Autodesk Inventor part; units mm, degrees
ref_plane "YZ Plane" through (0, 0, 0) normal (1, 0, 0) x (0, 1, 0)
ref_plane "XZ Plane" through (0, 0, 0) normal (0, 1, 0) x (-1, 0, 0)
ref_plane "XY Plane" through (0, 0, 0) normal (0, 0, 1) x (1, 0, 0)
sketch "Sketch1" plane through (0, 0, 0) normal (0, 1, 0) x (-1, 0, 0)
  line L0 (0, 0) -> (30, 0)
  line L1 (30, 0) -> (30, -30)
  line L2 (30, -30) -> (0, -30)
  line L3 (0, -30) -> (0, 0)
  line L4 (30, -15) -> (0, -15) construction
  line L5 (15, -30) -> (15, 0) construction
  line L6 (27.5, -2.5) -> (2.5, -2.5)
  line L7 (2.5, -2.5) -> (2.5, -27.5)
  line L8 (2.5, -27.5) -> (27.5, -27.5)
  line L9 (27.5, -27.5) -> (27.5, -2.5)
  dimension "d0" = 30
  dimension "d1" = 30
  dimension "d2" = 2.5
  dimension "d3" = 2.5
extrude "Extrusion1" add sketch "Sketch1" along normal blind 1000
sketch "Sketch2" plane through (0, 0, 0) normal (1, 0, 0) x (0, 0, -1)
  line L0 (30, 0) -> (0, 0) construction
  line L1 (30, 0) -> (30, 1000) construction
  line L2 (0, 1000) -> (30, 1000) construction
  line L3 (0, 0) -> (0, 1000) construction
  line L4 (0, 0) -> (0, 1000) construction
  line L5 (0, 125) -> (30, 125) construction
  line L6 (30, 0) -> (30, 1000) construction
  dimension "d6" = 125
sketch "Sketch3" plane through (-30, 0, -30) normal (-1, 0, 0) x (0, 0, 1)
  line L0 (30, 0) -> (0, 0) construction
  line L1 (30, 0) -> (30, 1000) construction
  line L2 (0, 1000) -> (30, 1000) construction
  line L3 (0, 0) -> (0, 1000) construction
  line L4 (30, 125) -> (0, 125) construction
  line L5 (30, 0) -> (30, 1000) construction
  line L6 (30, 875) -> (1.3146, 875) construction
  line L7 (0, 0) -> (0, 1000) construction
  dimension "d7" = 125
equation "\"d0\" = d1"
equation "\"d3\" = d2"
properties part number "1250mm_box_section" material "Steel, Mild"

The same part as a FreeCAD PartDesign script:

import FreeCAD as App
import Part
import Sketcher


def add_polygon(sketch, points):
    """Adds a closed chain of lines whose ends are joined by coincident constraints."""
    first, n = sketch.GeometryCount, len(points)
    for a, b in zip(points, points[1:] + points[:1]):
        sketch.addGeometry(Part.LineSegment(App.Vector(*a, 0), App.Vector(*b, 0)), False)
    for i in range(n):
        sketch.addConstraint(Sketcher.Constraint("Coincident", first + i, 2, first + (i + 1) % n, 1))

doc = App.newDocument("Part")
body = doc.addObject("PartDesign::Body", "Body")

# Sketch on XZ plane
sketch1 = body.newObject("Sketcher::SketchObject", "Sketch")
sketch1.AttachmentSupport = (doc.getObject("XZ_Plane"), [""])
sketch1.MapMode = "FlatFace"
add_polygon(sketch1, [(-30, 0), (0, 0), (0, -30), (-30, -30)])  # lines 0-3
add_polygon(sketch1, [(-2, -2), (-28, -2), (-28, -28), (-2, -28)])  # lines 4-7
sketch1.addConstraint(Sketcher.Constraint("Horizontal", 0))
sketch1.addConstraint(Sketcher.Constraint("Vertical", 1))
sketch1.addConstraint(Sketcher.Constraint("Horizontal", 2))
sketch1.addConstraint(Sketcher.Constraint("Vertical", 3))
sketch1.addConstraint(Sketcher.Constraint("Horizontal", 4))
sketch1.addConstraint(Sketcher.Constraint("Vertical", 5))
sketch1.addConstraint(Sketcher.Constraint("Horizontal", 6))
sketch1.addConstraint(Sketcher.Constraint("Vertical", 7))
sketch1.addConstraint(Sketcher.Constraint("Coincident", 0, 2, -1, 1))
sketch1.addConstraint(Sketcher.Constraint("Equal", 2, 1))
sketch1.addConstraint(Sketcher.Constraint("Equal", 6, 5))
sketch1.addConstraint(Sketcher.Constraint("DistanceX", 0, 1, 0, 2, 30.0))
sketch1.addConstraint(Sketcher.Constraint("DistanceY", 4, 2, -1, 1, 2.5))
sketch1.addConstraint(Sketcher.Constraint("DistanceX", 6, 2, -1, 1, 2.5))
sketch1.addConstraint(Sketcher.Constraint("DistanceX", 3, 2, 4, 2, 2.5))
pad1 = body.newObject("PartDesign::Pad", "Pad")
pad1.Profile = sketch1
pad1.Length = 1000
pad1.Reversed = True

doc.recompute()
